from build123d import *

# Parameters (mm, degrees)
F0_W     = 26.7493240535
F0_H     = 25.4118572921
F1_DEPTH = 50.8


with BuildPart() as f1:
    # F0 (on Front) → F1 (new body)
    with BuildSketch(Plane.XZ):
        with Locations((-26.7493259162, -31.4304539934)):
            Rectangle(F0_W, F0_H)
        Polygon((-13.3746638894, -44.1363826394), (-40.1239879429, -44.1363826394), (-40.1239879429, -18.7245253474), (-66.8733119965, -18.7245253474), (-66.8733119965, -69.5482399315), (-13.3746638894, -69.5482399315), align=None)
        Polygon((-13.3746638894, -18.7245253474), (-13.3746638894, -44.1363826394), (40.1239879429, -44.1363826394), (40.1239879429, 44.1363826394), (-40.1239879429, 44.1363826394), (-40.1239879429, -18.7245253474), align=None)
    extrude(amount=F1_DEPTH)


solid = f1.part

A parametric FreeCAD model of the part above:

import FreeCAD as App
import Part
import Sketcher
from FreeCAD import Vector
Q = App.Units.Quantity

doc = App.newDocument("Part")
body = doc.addObject("PartDesign::Body", "Body")

# Sketch on XZ plane
sketch1 = body.newObject("Sketcher::SketchObject", "Sketch")
sketch1.AttachmentSupport = (doc.getObject("XZ_Plane"), [""])
sketch1.MapMode = "FlatFace"
sketch1.addGeometry(Part.LineSegment(Vector(-40, -19, 0), Vector(-67, -19, 0)), False)
sketch1.addGeometry(Part.LineSegment(Vector(-67, -19, 0), Vector(-67, -70, 0)), False)
sketch1.addGeometry(Part.LineSegment(Vector(-67, -70, 0), Vector(-13, -70, 0)), False)
sketch1.addGeometry(Part.LineSegment(Vector(-13, -70, 0), Vector(-13, -44, 0)), False)
sketch1.addGeometry(Part.LineSegment(Vector(-13, -44, 0), Vector(40, -44, 0)), False)
sketch1.addGeometry(Part.LineSegment(Vector(40, -44, 0), Vector(40, 44, 0)), False)
sketch1.addGeometry(Part.LineSegment(Vector(40, 44, 0), Vector(-40, 44, 0)), False)
sketch1.addGeometry(Part.LineSegment(Vector(-40, 44, 0), Vector(-40, -19, 0)), False)
sketch1.addConstraint(Sketcher.Constraint("Coincident", 0, 2, 1, 1))
sketch1.addConstraint(Sketcher.Constraint("Coincident", 1, 2, 2, 1))
sketch1.addConstraint(Sketcher.Constraint("Coincident", 2, 2, 3, 1))
sketch1.addConstraint(Sketcher.Constraint("Coincident", 3, 2, 4, 1))
sketch1.addConstraint(Sketcher.Constraint("Coincident", 4, 2, 5, 1))
sketch1.addConstraint(Sketcher.Constraint("Coincident", 5, 2, 6, 1))
sketch1.addConstraint(Sketcher.Constraint("Coincident", 6, 2, 7, 1))
sketch1.addConstraint(Sketcher.Constraint("Coincident", 7, 2, 0, 1))
sketch1.addConstraint(Sketcher.Constraint("Horizontal", 0))
sketch1.addConstraint(Sketcher.Constraint("Vertical", 1))
sketch1.addConstraint(Sketcher.Constraint("Horizontal", 2))
sketch1.addConstraint(Sketcher.Constraint("Vertical", 3))
sketch1.addConstraint(Sketcher.Constraint("Horizontal", 4))
sketch1.addConstraint(Sketcher.Constraint("Vertical", 5))
sketch1.addConstraint(Sketcher.Constraint("Horizontal", 6))
sketch1.addConstraint(Sketcher.Constraint("Vertical", 7))
sketch1.addConstraint(Sketcher.Constraint("Symmetric", 4, 2, 6, 2, -1, 1))
sketch1.addConstraint(Sketcher.Constraint("DistanceX", 2, 1, 2, 2, 53.498648))
sketch1.addConstraint(Sketcher.Constraint("DistanceX", 4, 1, 4, 2, 53.498652))
sketch1.addConstraint(Sketcher.Constraint("DistanceX", 0, 2, 0, 1, 26.749324))
sketch1.addConstraint(Sketcher.Constraint("DistanceY", 1, 2, 1, 1, 50.823715))
sketch1.addConstraint(Sketcher.Constraint("DistanceY", 3, 1, 3, 2, 25.411857))
sketch1.addConstraint(Sketcher.Constraint("DistanceY", 5, 1, 5, 2, 88.272765))
pad1 = body.newObject("PartDesign::Pad", "Pad")
pad1.Profile = sketch1
pad1.Length = Q("2 in")

doc.recompute()
